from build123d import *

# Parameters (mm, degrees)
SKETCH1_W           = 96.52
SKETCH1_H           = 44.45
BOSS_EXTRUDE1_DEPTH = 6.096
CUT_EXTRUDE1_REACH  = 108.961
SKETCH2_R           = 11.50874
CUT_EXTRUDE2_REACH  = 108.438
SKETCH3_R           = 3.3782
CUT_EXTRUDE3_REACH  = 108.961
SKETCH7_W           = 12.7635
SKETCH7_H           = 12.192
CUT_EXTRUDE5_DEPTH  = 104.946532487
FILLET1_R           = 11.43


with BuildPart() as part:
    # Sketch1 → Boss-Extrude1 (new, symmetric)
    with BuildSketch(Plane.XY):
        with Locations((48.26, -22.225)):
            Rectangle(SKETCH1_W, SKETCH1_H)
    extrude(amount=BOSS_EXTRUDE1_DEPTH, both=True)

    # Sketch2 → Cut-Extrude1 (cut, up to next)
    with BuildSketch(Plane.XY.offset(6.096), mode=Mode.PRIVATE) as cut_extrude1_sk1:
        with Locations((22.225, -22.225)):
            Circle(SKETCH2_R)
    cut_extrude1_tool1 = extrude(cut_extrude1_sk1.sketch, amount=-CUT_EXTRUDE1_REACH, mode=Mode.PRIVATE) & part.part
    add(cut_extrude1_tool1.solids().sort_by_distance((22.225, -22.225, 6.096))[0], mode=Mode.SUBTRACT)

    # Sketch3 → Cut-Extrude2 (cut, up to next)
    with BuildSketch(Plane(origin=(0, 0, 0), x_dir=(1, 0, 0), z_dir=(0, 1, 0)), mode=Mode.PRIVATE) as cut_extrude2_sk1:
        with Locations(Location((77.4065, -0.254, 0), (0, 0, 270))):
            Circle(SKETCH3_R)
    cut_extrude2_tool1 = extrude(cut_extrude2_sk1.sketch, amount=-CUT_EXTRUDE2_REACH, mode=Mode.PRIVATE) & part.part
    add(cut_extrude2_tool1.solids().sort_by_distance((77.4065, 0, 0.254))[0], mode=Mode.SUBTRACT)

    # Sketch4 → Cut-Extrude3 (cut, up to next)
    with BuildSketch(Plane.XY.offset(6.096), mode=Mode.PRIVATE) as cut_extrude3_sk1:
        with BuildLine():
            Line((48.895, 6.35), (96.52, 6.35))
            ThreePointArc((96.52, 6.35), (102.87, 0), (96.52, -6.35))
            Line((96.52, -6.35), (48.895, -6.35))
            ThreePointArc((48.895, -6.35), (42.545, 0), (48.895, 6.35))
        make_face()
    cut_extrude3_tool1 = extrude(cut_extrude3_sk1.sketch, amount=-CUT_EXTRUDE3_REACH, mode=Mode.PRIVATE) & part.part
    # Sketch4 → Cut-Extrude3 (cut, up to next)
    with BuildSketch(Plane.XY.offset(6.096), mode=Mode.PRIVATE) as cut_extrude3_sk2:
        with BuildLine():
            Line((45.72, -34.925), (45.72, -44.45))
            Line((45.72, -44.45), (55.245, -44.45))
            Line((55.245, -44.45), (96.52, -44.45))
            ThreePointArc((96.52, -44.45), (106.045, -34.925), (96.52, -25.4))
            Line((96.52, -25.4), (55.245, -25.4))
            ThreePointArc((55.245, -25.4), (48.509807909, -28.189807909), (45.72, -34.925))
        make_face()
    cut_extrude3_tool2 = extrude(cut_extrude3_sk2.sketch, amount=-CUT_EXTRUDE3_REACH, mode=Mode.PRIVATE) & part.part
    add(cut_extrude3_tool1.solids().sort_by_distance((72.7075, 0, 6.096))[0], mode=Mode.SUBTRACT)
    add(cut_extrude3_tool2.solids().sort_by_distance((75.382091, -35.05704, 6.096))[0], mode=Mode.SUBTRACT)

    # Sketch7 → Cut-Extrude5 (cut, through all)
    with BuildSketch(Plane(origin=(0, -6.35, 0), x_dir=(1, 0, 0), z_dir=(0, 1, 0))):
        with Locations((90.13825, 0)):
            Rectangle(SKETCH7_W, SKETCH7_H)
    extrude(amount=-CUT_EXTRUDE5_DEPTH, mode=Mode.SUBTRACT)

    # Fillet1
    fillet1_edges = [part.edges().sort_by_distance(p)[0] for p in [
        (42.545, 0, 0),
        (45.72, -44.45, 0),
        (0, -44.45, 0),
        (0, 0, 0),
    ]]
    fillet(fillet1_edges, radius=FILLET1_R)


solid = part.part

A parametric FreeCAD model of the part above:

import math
import FreeCAD as App
import Part
import Sketcher
Q = App.Units.Quantity


def edges_at(feature, points):
    """Names of the edges that pass closest to the given points."""
    edges = feature.Shape.Edges
    near = lambda p: min(range(len(edges)), key=lambda i: edges[i].distToShape(Part.Vertex(*p))[0])
    return sorted({f"Edge{near(p) + 1}" for p in points})

doc = App.newDocument("Part")
body = doc.addObject("PartDesign::Body", "Body")

sketch1 = body.newObject("Sketcher::SketchObject", "Sketch")
sketch1.AttachmentSupport = (doc.getObject("XY_Plane"), [""])
sketch1.MapMode = "FlatFace"
sketch1.addGeometry([
    Part.LineSegment(App.Vector(0, 0, 0), App.Vector(0, -44, 0)),
    Part.LineSegment(App.Vector(0, -44, 0), App.Vector(97, -44, 0)),
    Part.LineSegment(App.Vector(97, -44, 0), App.Vector(97, 0, 0)),
    Part.LineSegment(App.Vector(97, 0, 0), App.Vector(0, 0, 0)),
], False)
sketch1.addConstraint([
    Sketcher.Constraint("Coincident", 0, 2, 1, 1),
    Sketcher.Constraint("Coincident", 1, 2, 2, 1),
    Sketcher.Constraint("Coincident", 2, 2, 3, 1),
    Sketcher.Constraint("Coincident", 3, 2, 0, 1),
    Sketcher.Constraint("Vertical", 0),
    Sketcher.Constraint("Horizontal", 1),
    Sketcher.Constraint("Vertical", 2),
    Sketcher.Constraint("Horizontal", 3),
    Sketcher.Constraint("Coincident", 3, 2, -1, 1),
    Sketcher.Constraint("DistanceX", 1, 1, 1, 2, Q("3.8 in")),
    Sketcher.Constraint("DistanceY", 0, 2, 0, 1, Q("1.75 in")),
])
pad1 = body.newObject("PartDesign::Pad", "Pad")
pad1.Profile = sketch1
pad1.Length = Q("0.48 in")
pad1.Midplane = True

sketch2 = body.newObject("Sketcher::SketchObject", "Sketch001")
sketch2.AttachmentSupport = (doc.getObject("XY_Plane"), [""])
sketch2.MapMode = "FlatFace"
sketch2.AttachmentOffset = App.Placement(App.Vector(0, 0, 0.24 * 25.4), App.Rotation())
sketch2.addGeometry(Part.Circle(App.Vector(22, -22, 0), App.Vector(0, 0, 1), 12), False)
sketch2.addConstraint([
    Sketcher.Constraint("Diameter", 0, Q("0.9062 in")),
    Sketcher.Constraint("DistanceX", -1, 1, 0, 3, Q("0.875 in")),
    Sketcher.Constraint("DistanceY", 0, 3, -1, 1, Q("0.875 in")),
])
pocket1 = body.newObject("PartDesign::Pocket", "Pocket")
pocket1.Profile = sketch2
pocket1.Type = "UpToFirst"

sketch3 = body.newObject("Sketcher::SketchObject", "Sketch002")
sketch3.AttachmentSupport = (doc.getObject("XZ_Plane"), [""])
sketch3.MapMode = "FlatFace"
sketch3.addGeometry(Part.Circle(App.Vector(77.4, 0.3, 0), App.Vector(0, 0, 1), 3.4), False)
sketch3.addConstraint([
    Sketcher.Constraint("Diameter", 0, Q("0.266 in")),
    Sketcher.Constraint("DistanceY", -1, 1, 0, 3, Q("0.01 in")),
    Sketcher.Constraint("DistanceX", -1, 1, 0, 3, Q("3.0475 in")),
])
pocket2 = body.newObject("PartDesign::Pocket", "Pocket001")
pocket2.Profile = sketch3
pocket2.Type = "UpToFirst"
pocket2.Reversed = True

sketch4 = body.newObject("Sketcher::SketchObject", "Sketch003")
sketch4.AttachmentSupport = (doc.getObject("XY_Plane"), [""])
sketch4.MapMode = "FlatFace"
sketch4.AttachmentOffset = App.Placement(App.Vector(0, 0, 0.24 * 25.4), App.Rotation())
sketch4.addGeometry([
    Part.LineSegment(App.Vector(97, 6, 0), App.Vector(49, 6, 0)),
    Part.ArcOfCircle(Part.Circle(App.Vector(49, 0, 0), App.Vector(0, 0, 1), 6), math.radians(90), math.radians(270)),
    Part.LineSegment(App.Vector(49, -6, 0), App.Vector(97, -6, 0)),
    Part.ArcOfCircle(Part.Circle(App.Vector(97, 0, 0), App.Vector(0, 0, 1), 6), math.radians(-90), math.radians(90)),
], False)
sketch4.addConstraint([
    Sketcher.Constraint("Tangent", 0, 2, 1, 1),
    Sketcher.Constraint("Tangent", 1, 2, 2, 1),
    Sketcher.Constraint("Tangent", 2, 2, 3, 1),
    Sketcher.Constraint("Tangent", 3, 2, 0, 1),
    Sketcher.Constraint("Horizontal", 0),
    Sketcher.Constraint("Horizontal", 2),
    Sketcher.Constraint("PointOnObject", 1, 3, -1),
    Sketcher.Constraint("Radius", 1, Q("0.25 in")),
    Sketcher.Constraint("DistanceX", -1, 1, 3, 3, Q("3.8 in")),
    Sketcher.Constraint("DistanceX", 0, 2, 0, 1, Q("1.875 in")),
])
pocket3 = body.newObject("PartDesign::Pocket", "Pocket002")
pocket3.Profile = sketch4
pocket3.Type = "UpToFirst"

sketch5 = body.newObject("Sketcher::SketchObject", "Sketch004")
sketch5.AttachmentSupport = (doc.getObject("XY_Plane"), [""])
sketch5.MapMode = "FlatFace"
sketch5.AttachmentOffset = App.Placement(App.Vector(0, 0, 0.24 * 25.4), App.Rotation())
sketch5.addGeometry([
    Part.LineSegment(App.Vector(46, -35, 0), App.Vector(46, -44, 0)),
    Part.LineSegment(App.Vector(46, -44, 0), App.Vector(97, -44, 0)),
    Part.ArcOfCircle(Part.Circle(App.Vector(97, -35, 0), App.Vector(0, 0, 1), 10), math.radians(-90), math.radians(90)),
    Part.LineSegment(App.Vector(97, -25, 0), App.Vector(55, -25, 0)),
    Part.ArcOfCircle(Part.Circle(App.Vector(55, -35, 0), App.Vector(0, 0, 1), 10), math.radians(90), math.radians(180)),
], False)
sketch5.addConstraint([
    Sketcher.Constraint("Coincident", 0, 2, 1, 1),
    Sketcher.Constraint("Tangent", 1, 2, 2, 1),
    Sketcher.Constraint("Tangent", 2, 2, 3, 1),
    Sketcher.Constraint("Tangent", 3, 2, 4, 1),
    Sketcher.Constraint("Tangent", 4, 2, 0, 1),
    Sketcher.Constraint("Vertical", 0),
    Sketcher.Constraint("Horizontal", 1),
    Sketcher.Constraint("Horizontal", 3),
    Sketcher.Constraint("Equal", 2, 4),
    Sketcher.Constraint("DistanceX", 1, 1, 1, 2, Q("2 in")),
    Sketcher.Constraint("DistanceY", 2, 2, -1, 1, Q("1 in")),
    Sketcher.Constraint("Radius", 2, Q("0.375 in")),
    Sketcher.Constraint("DistanceX", -1, 1, 2, 3, Q("3.8 in")),
])
pocket4 = body.newObject("PartDesign::Pocket", "Pocket003")
pocket4.Profile = sketch5
pocket4.Type = "UpToFirst"

sketch6 = body.newObject("Sketcher::SketchObject", "Sketch005")
sketch6.AttachmentSupport = (doc.getObject("XZ_Plane"), [""])
sketch6.MapMode = "FlatFace"
sketch6.AttachmentOffset = App.Placement(App.Vector(0, 0, 0.25 * 25.4), App.Rotation())
sketch6.addGeometry([
    Part.LineSegment(App.Vector(84, -6, 0), App.Vector(84, 6, 0)),
    Part.LineSegment(App.Vector(84, 6, 0), App.Vector(97, 6, 0)),
    Part.LineSegment(App.Vector(97, 6, 0), App.Vector(97, -6, 0)),
    Part.LineSegment(App.Vector(97, -6, 0), App.Vector(84, -6, 0)),
], False)
sketch6.addConstraint([
    Sketcher.Constraint("Coincident", 0, 2, 1, 1),
    Sketcher.Constraint("Coincident", 1, 2, 2, 1),
    Sketcher.Constraint("Coincident", 2, 2, 3, 1),
    Sketcher.Constraint("Coincident", 3, 2, 0, 1),
    Sketcher.Constraint("Vertical", 0),
    Sketcher.Constraint("Horizontal", 1),
    Sketcher.Constraint("Vertical", 2),
    Sketcher.Constraint("Horizontal", 3),
    Sketcher.Constraint("DistanceY", 0, 1, 0, 2, Q("0.48 in")),
    Sketcher.Constraint("DistanceX", -1, 1, 1, 2, Q("3.8 in")),
    Sketcher.Constraint("DistanceY", -1, 1, 0, 2, Q("0.24 in")),
    Sketcher.Constraint("DistanceX", 1, 1, 1, 2, Q("0.5025 in")),
])
pocket5 = body.newObject("PartDesign::Pocket", "Pocket004")
pocket5.Profile = sketch6
pocket5.Type = "ThroughAll"
pocket5.Reversed = True
doc.recompute()

fillet = body.newObject("PartDesign::Fillet", "Fillet")
fillet.Base = (pocket5, edges_at(pocket5, [
    (42.545, 0, 0),
    (45.72, -44.45, 0),
    (0, -44.45, 0),
    (0, 0, 0),
]))
fillet.Radius = Q("0.45 in")

doc.recompute()
